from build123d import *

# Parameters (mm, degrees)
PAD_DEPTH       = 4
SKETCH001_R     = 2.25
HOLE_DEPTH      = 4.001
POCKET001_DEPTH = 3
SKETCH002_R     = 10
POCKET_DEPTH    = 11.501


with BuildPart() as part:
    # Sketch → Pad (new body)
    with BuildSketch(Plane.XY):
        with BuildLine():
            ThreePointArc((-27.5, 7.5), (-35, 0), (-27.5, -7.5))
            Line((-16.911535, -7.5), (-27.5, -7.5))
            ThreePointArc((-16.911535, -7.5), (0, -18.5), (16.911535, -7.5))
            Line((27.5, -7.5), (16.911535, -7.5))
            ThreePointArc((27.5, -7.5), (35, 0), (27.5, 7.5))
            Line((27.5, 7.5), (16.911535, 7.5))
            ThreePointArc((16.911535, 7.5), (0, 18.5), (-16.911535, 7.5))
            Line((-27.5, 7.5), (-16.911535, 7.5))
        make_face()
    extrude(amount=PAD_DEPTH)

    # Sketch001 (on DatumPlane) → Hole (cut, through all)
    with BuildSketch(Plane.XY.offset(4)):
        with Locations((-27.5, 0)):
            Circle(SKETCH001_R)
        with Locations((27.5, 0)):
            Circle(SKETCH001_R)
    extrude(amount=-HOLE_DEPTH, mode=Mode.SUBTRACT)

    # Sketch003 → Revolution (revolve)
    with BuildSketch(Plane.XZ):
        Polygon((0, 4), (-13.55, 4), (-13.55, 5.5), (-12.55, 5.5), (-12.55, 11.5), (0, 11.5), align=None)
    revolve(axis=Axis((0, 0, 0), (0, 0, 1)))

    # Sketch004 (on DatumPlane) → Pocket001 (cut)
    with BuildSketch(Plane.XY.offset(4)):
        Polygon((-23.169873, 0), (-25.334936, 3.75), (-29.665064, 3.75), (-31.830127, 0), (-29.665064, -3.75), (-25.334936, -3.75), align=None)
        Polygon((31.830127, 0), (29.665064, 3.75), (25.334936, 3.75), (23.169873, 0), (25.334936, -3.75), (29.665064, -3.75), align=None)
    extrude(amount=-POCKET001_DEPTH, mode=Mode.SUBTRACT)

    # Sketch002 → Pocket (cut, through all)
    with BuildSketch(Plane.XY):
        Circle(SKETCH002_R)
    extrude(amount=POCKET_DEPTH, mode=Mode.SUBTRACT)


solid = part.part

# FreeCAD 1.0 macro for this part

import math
import FreeCAD as App
import Part
import Sketcher

V = App.Vector
Q = App.Units.Quantity


def add_polygon(sketch, points):
    """Adds a closed chain of lines whose ends are joined by coincident constraints."""
    first, n = sketch.GeometryCount, len(points)
    for a, b in zip(points, points[1:] + points[:1]):
        sketch.addGeometry(Part.LineSegment(App.Vector(*a, 0), App.Vector(*b, 0)), False)
    for i in range(n):
        sketch.addConstraint(Sketcher.Constraint("Coincident", first + i, 2, first + (i + 1) % n, 1))

doc = App.newDocument("Part")
params = doc.addObject("Spreadsheet::Sheet", "Params")
for row, (alias, value) in enumerate([
    ("sketch1_radius", "7.5 mm"),
    ("sketch1_radius2", "18.500001 mm"),
    ("pad1_length", "4 mm"),
    ("sketch2_diameter", "4.5 mm"),
    ("sketch3_width", "1 mm"),
    ("sketch3_height", "6 mm"),
    ("sketch3_height2", "7.5 mm"),
    ("sketch3_width2", "13.55 mm"),
    ("revolution_angle", "360 deg"),
    ("pocket2_length", "3 mm"),
    ("sketch5_diameter", "20 mm"),
], start=1):
    params.set(f"A{row}", alias)
    params.set(f"B{row}", "=" + value)
    params.setAlias(f"B{row}", alias)

body = doc.addObject("PartDesign::Body", "Body")

# Sketch on XY plane
sketch1 = body.newObject("Sketcher::SketchObject", "Sketch")
sketch1.AttachmentSupport = (doc.getObject("XY_Plane"), [""])
sketch1.MapMode = "FlatFace"
sketch1.addGeometry(Part.ArcOfCircle(Part.Circle(V(-27.5, 0, 0), V(0, 0, 1), 7.5), math.radians(90), math.radians(270)), False)
sketch1.addGeometry(Part.LineSegment(V(-27.5, -7.5, 0), V(-16.911535, -7.5, 0)), False)
sketch1.addGeometry(Part.ArcOfCircle(Part.Circle(V(0, 0.000001, 0), V(0, 0, 1), 18.500001), math.radians(-156.083464), math.radians(-23.916536)), False)
sketch1.addGeometry(Part.LineSegment(V(16.911535, -7.5, 0), V(27.5, -7.5, 0)), False)
sketch1.addGeometry(Part.ArcOfCircle(Part.Circle(V(27.5, 0, 0), V(0, 0, 1), 7.5), math.radians(-90), math.radians(90)), False)
sketch1.addGeometry(Part.LineSegment(V(27.5, 7.5, 0), V(16.911535, 7.5, 0)), False)
sketch1.addGeometry(Part.ArcOfCircle(Part.Circle(V(0, -0.000001, 0), V(0, 0, 1), 18.500001), math.radians(23.916536), math.radians(156.083464)), False)
sketch1.addGeometry(Part.LineSegment(V(-16.911535, 7.5, 0), V(-27.5, 7.5, 0)), False)
sketch1.addConstraint(Sketcher.Constraint("Tangent", 0, 2, 1, 1))
sketch1.addConstraint(Sketcher.Constraint("Coincident", 1, 2, 2, 1))
sketch1.addConstraint(Sketcher.Constraint("Coincident", 2, 2, 3, 1))
sketch1.addConstraint(Sketcher.Constraint("Tangent", 3, 2, 4, 1))
sketch1.addConstraint(Sketcher.Constraint("Tangent", 4, 2, 5, 1))
sketch1.addConstraint(Sketcher.Constraint("Coincident", 5, 2, 6, 1))
sketch1.addConstraint(Sketcher.Constraint("Coincident", 6, 2, 7, 1))
sketch1.addConstraint(Sketcher.Constraint("Tangent", 7, 2, 0, 1))
sketch1.addConstraint(Sketcher.Constraint("Horizontal", 1))
sketch1.addConstraint(Sketcher.Constraint("Horizontal", 3))
sketch1.addConstraint(Sketcher.Constraint("Horizontal", 5))
sketch1.addConstraint(Sketcher.Constraint("Horizontal", 7))
sketch1.addConstraint(Sketcher.Constraint("Coincident", 2, 3, -1, 1))
sketch1.addConstraint(Sketcher.Constraint("Coincident", 6, 3, -1, 1))
sketch1.addConstraint(Sketcher.Constraint("Equal", 0, 4))
sketch1.addConstraint(Sketcher.Constraint("Equal", 2, 6))
sketch1.addConstraint(Sketcher.Constraint("Symmetric", 0, 3, 4, 3, -1, 1))
sketch1.addConstraint(Sketcher.Constraint("PointOnObject", 0, 3, -1))
sketch1.addConstraint(Sketcher.Constraint("Radius", 0, Q("7.5 mm")))
sketch1.addConstraint(Sketcher.Constraint("Radius", 2, Q("18.500001 mm")))
sketch1.addConstraint(Sketcher.Constraint("DistanceX", 0, 3, 4, 3, Q("55 mm")))
sketch1.setExpression("Constraints[18]", "Params.sketch1_radius")
sketch1.setExpression("Constraints[19]", "Params.sketch1_radius2")
pad1 = body.newObject("PartDesign::Pad", "Pad")
pad1.Profile = sketch1
pad1.setExpression("Length", "Params.pad1_length")

# Sketch on XY plane
sketch2 = body.newObject("Sketcher::SketchObject", "Sketch001")
sketch2.AttachmentSupport = (doc.getObject("XY_Plane"), [""])
sketch2.MapMode = "FlatFace"
sketch2.AttachmentOffset = App.Placement(V(0, 0, 4), App.Rotation())
sketch2.addGeometry(Part.Circle(V(-27.5, 0, 0), V(0, 0, 1), 2.25), False)
sketch2.addGeometry(Part.Circle(V(27.5, 0, 0), V(0, 0, 1), 2.25), False)
sketch2.addConstraint(Sketcher.Constraint("Equal", 0, 1))
sketch2.addConstraint(Sketcher.Constraint("Symmetric", 0, 3, 1, 3, -1, 1))
sketch2.addConstraint(Sketcher.Constraint("PointOnObject", 0, 3, -1))
sketch2.addConstraint(Sketcher.Constraint("Diameter", 0, Q("4.5 mm")))
sketch2.addConstraint(Sketcher.Constraint("DistanceX", 0, 3, 1, 3, Q("55 mm")))
sketch2.setExpression("Constraints[3]", "Params.sketch2_diameter")
pocket1 = body.newObject("PartDesign::Pocket", "Pocket")
pocket1.Profile = sketch2
pocket1.Type = "ThroughAll"

# Sketch on XZ plane
sketch3 = body.newObject("Sketcher::SketchObject", "Sketch002")
sketch3.AttachmentSupport = (doc.getObject("XZ_Plane"), [""])
sketch3.MapMode = "FlatFace"
add_polygon(sketch3, [(-13.55, 4), (0, 4), (0, 11.5), (-12.55, 11.5), (-12.55, 5.5), (-13.55, 5.5)])  # lines 0-5
sketch3.addConstraint(Sketcher.Constraint("Horizontal", 0))
sketch3.addConstraint(Sketcher.Constraint("Vertical", 1))
sketch3.addConstraint(Sketcher.Constraint("Horizontal", 2))
sketch3.addConstraint(Sketcher.Constraint("Vertical", 3))
sketch3.addConstraint(Sketcher.Constraint("Horizontal", 4))
sketch3.addConstraint(Sketcher.Constraint("Vertical", 5))
sketch3.addConstraint(Sketcher.Constraint("PointOnObject", 0, 2, -2))
sketch3.addConstraint(Sketcher.Constraint("DistanceX", 4, 2, 4, 1, Q("1 mm")))
sketch3.addConstraint(Sketcher.Constraint("DistanceY", 3, 2, 3, 1, Q("6 mm")))
sketch3.addConstraint(Sketcher.Constraint("DistanceY", 1, 1, 1, 2, Q("7.5 mm")))
sketch3.addConstraint(Sketcher.Constraint("DistanceY", -1, 1, 0, 2, Q("4 mm")))
sketch3.addConstraint(Sketcher.Constraint("DistanceX", 0, 1, 0, 2, Q("13.55 mm")))
sketch3.setExpression("Constraints[13]", "Params.sketch3_width")
sketch3.setExpression("Constraints[14]", "Params.sketch3_height")
sketch3.setExpression("Constraints[15]", "Params.sketch3_height2")
sketch3.setExpression("Constraints[17]", "Params.sketch3_width2")
revolution = body.newObject("PartDesign::Revolution", "Revolution")
revolution.Profile = sketch3
revolution.ReferenceAxis = (sketch3, ["V_Axis"])
revolution.setExpression("Angle", "Params.revolution_angle")

# Sketch on XY plane
sketch4 = body.newObject("Sketcher::SketchObject", "Sketch003")
sketch4.AttachmentSupport = (doc.getObject("XY_Plane"), [""])
sketch4.MapMode = "FlatFace"
sketch4.AttachmentOffset = App.Placement(V(0, 0, 4), App.Rotation())
add_polygon(sketch4, [(-23.169873, 0), (-25.334936, 3.75), (-29.665064, 3.75), (-31.830127, 0), (-29.665064, -3.75), (-25.334936, -3.75)])  # lines 0-5
add_polygon(sketch4, [(31.830127, 0), (29.665064, 3.75), (25.334936, 3.75), (23.169873, 0), (25.334936, -3.75), (29.665064, -3.75)])  # lines 6-11
sketch4.addConstraint(Sketcher.Constraint("Horizontal", 1))
sketch4.addConstraint(Sketcher.Constraint("Horizontal", 4))
sketch4.addConstraint(Sketcher.Constraint("Horizontal", 7))
sketch4.addConstraint(Sketcher.Constraint("Horizontal", 10))
sketch4.addConstraint(Sketcher.Constraint("Symmetric", 3, 2, 6, 2, -1, 1))
sketch4.addConstraint(Sketcher.Constraint("Symmetric", 5, 2, 8, 2, -1, 1))
sketch4.addConstraint(Sketcher.Constraint("Symmetric", 0, 2, 9, 2, -1, 1))
sketch4.addConstraint(Sketcher.Constraint("Symmetric", 2, 2, 11, 2, -1, 1))
sketch4.addConstraint(Sketcher.Constraint("Symmetric", 1, 2, 6, 2, -2))
sketch4.addConstraint(Sketcher.Constraint("PointOnObject", 2, 2, -1))
sketch4.addConstraint(Sketcher.Constraint("PointOnObject", 5, 2, -1))
sketch4.addConstraint(Sketcher.Constraint("Parallel", 0, 3))
sketch4.addConstraint(Sketcher.Constraint("Parallel", 2, 5))
sketch4.addConstraint(Sketcher.Constraint("Parallel", 5, 8))
sketch4.addConstraint(Sketcher.Constraint("Parallel", 8, 11))
sketch4.addConstraint(Sketcher.Constraint("Angle", 0, Q("119.999994 deg")))
sketch4.addConstraint(Sketcher.Constraint("DistanceX", 0, 2, 6, 2, Q("55 mm")))
sketch4.addConstraint(Sketcher.Constraint("DistanceY", 3, 2, 1, 2, Q("7.5 mm")))
sketch4.addConstraint(Sketcher.Constraint("DistanceX", 1, 2, 1, 1, Q("4.330128 mm")))
pocket2 = body.newObject("PartDesign::Pocket", "Pocket001")
pocket2.Profile = sketch4
pocket2.setExpression("Length", "Params.pocket2_length")

# Sketch on XY plane
sketch5 = body.newObject("Sketcher::SketchObject", "Sketch004")
sketch5.AttachmentSupport = (doc.getObject("XY_Plane"), [""])
sketch5.MapMode = "FlatFace"
sketch5.addGeometry(Part.Circle(V(0, 0, 0), V(0, 0, 1), 10), False)
sketch5.addConstraint(Sketcher.Constraint("Coincident", 0, 3, -1, 1))
sketch5.addConstraint(Sketcher.Constraint("Diameter", 0, Q("20 mm")))
sketch5.setExpression("Constraints[1]", "Params.sketch5_diameter")
pocket3 = body.newObject("PartDesign::Pocket", "Pocket002")
pocket3.Profile = sketch5
pocket3.Type = "ThroughAll"
pocket3.Reversed = True

doc.recompute()
